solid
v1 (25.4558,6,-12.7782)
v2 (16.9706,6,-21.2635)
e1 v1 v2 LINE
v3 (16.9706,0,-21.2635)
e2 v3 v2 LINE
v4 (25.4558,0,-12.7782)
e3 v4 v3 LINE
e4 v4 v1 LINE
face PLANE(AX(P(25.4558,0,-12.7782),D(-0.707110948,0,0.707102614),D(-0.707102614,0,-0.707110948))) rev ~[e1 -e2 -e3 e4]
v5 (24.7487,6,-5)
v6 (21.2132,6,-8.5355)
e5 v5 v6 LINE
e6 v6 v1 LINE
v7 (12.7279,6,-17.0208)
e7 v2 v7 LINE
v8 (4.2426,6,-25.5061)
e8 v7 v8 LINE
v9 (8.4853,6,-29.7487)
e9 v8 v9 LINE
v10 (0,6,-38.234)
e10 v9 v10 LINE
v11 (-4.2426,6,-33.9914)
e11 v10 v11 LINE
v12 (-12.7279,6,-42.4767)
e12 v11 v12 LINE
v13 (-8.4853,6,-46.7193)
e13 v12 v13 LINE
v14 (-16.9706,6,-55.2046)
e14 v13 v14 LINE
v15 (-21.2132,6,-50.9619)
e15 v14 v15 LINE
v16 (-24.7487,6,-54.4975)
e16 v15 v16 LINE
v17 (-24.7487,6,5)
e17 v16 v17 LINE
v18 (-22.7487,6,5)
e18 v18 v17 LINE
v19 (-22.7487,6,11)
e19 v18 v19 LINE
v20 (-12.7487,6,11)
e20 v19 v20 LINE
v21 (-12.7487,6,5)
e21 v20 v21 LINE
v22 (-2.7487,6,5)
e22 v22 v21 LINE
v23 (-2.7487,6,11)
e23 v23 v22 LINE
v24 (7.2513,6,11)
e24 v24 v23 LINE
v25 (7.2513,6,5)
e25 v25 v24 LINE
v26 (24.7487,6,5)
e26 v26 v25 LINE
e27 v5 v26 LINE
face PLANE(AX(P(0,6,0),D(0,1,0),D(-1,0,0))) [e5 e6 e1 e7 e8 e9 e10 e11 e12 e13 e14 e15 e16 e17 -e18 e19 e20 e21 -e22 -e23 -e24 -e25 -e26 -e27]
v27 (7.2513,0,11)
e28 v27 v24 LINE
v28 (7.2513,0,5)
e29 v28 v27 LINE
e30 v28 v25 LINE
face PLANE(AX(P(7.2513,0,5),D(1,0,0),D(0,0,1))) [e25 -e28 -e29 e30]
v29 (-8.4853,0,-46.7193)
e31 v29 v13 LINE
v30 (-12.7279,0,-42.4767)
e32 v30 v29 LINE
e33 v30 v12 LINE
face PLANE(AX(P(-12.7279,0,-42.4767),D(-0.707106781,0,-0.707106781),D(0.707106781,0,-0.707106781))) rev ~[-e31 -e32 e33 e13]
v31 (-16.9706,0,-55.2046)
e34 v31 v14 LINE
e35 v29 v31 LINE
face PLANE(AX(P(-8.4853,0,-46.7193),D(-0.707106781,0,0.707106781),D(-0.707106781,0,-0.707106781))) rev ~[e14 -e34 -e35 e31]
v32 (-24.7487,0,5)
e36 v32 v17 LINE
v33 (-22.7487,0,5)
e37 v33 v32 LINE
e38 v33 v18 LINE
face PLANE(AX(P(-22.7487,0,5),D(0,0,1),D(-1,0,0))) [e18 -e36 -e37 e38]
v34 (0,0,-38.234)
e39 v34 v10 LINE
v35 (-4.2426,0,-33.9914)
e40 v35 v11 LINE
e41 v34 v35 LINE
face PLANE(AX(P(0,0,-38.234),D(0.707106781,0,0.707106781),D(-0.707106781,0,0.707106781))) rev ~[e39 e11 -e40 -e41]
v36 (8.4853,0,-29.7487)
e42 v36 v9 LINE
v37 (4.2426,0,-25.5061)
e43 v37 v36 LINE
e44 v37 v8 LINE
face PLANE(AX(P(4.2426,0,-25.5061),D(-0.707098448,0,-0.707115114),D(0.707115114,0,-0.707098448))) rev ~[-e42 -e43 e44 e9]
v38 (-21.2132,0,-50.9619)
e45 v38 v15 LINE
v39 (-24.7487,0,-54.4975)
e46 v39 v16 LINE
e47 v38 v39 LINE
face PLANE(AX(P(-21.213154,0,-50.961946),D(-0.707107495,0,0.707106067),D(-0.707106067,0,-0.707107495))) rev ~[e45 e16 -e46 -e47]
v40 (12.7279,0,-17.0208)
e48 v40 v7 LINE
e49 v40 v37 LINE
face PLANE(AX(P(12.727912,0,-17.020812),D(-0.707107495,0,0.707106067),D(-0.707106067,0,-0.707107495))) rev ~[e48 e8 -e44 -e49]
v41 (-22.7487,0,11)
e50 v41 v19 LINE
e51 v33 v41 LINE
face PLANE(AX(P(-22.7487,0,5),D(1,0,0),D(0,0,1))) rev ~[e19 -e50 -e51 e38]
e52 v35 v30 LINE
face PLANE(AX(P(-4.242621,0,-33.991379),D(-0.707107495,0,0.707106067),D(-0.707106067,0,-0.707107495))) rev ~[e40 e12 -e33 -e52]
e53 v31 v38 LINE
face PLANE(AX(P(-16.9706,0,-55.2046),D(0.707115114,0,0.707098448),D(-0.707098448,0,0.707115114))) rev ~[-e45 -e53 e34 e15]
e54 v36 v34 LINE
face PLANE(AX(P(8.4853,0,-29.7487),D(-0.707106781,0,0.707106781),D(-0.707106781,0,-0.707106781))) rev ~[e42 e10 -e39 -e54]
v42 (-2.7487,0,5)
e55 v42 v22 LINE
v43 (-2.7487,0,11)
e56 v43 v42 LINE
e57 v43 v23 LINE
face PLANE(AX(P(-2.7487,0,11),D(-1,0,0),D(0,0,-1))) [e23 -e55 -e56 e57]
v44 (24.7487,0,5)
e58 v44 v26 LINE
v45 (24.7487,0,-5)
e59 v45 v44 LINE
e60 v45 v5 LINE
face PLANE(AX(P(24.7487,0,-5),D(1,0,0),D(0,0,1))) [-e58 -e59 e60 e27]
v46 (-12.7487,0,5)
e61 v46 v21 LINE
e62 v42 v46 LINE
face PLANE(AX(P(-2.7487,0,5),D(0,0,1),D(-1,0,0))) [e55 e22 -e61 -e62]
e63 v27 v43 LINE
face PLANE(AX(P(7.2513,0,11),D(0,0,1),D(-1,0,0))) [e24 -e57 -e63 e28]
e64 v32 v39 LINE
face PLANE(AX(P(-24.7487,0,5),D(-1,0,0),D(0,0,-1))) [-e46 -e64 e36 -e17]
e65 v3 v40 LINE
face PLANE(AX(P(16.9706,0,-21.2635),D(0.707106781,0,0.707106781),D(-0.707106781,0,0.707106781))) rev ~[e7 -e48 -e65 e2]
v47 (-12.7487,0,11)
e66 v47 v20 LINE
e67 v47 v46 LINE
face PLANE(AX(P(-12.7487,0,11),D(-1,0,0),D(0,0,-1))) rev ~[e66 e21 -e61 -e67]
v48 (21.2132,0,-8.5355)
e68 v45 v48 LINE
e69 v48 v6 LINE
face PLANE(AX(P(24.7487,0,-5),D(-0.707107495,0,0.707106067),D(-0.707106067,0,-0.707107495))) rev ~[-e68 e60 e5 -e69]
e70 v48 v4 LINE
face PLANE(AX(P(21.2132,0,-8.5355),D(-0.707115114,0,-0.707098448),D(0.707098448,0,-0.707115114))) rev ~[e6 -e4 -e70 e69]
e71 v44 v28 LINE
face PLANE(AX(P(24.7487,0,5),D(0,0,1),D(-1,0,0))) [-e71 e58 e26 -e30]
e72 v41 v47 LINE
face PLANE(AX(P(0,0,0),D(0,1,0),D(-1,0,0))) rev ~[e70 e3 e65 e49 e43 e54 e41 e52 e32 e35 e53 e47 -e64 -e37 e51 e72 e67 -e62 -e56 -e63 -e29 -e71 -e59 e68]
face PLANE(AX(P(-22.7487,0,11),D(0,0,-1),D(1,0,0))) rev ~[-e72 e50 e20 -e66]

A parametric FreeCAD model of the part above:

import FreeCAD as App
import Part
import Sketcher
from FreeCAD import Vector
Q = App.Units.Quantity

doc = App.newDocument("Part")
body = doc.addObject("PartDesign::Body", "Body")

sketch1 = body.newObject("Sketcher::SketchObject", "Sketch")
sketch1.AttachmentSupport = (doc.getObject("XZ_Plane"), [""])
sketch1.MapMode = "FlatFace"
sketch1.addGeometry([
    Part.LineSegment(Vector(7.3, 5, 0), Vector(24.7, 5, 0)),
    Part.LineSegment(Vector(24.7, 5, 0), Vector(24.7, -5, 0)),
    Part.LineSegment(Vector(24.7, -5, 0), Vector(21.2, -8.5, 0)),
    Part.LineSegment(Vector(21.2, -8.5, 0), Vector(25.5, -12.8, 0)),
    Part.LineSegment(Vector(25.5, -12.8, 0), Vector(17, -21.3, 0)),
    Part.LineSegment(Vector(17, -21.3, 0), Vector(12.7, -17, 0)),
    Part.LineSegment(Vector(12.7, -17, 0), Vector(4.2, -25.5, 0)),
    Part.LineSegment(Vector(4.2, -25.5, 0), Vector(8.5, -29.7, 0)),
    Part.LineSegment(Vector(8.5, -29.7, 0), Vector(0, -38.2, 0)),
    Part.LineSegment(Vector(0, -38.2, 0), Vector(-4.2, -34, 0)),
    Part.LineSegment(Vector(-4.2, -34, 0), Vector(-12.7, -42.5, 0)),
    Part.LineSegment(Vector(-12.7, -42.5, 0), Vector(-8.5, -46.7, 0)),
    Part.LineSegment(Vector(-8.5, -46.7, 0), Vector(-17, -55.2, 0)),
    Part.LineSegment(Vector(-17, -55.2, 0), Vector(-21.2, -51, 0)),
    Part.LineSegment(Vector(-21.2, -51, 0), Vector(-24.7, -54.5, 0)),
    Part.LineSegment(Vector(-24.7, -54.5, 0), Vector(-24.7, 5, 0)),
    Part.LineSegment(Vector(-24.7, 5, 0), Vector(-22.7, 5, 0)),
    Part.LineSegment(Vector(-22.7, 5, 0), Vector(-22.7, 11, 0)),
    Part.LineSegment(Vector(-22.7, 11, 0), Vector(-12.7, 11, 0)),
    Part.LineSegment(Vector(-12.7, 11, 0), Vector(-12.7, 5, 0)),
    Part.LineSegment(Vector(-12.7, 5, 0), Vector(-2.7, 5, 0)),
    Part.LineSegment(Vector(-2.7, 5, 0), Vector(-2.7, 11, 0)),
    Part.LineSegment(Vector(-2.7, 11, 0), Vector(7.3, 11, 0)),
    Part.LineSegment(Vector(7.3, 11, 0), Vector(7.3, 5, 0)),
], False)
sketch1.addConstraint([
    Sketcher.Constraint("Coincident", 0, 2, 1, 1),
    Sketcher.Constraint("Coincident", 1, 2, 2, 1),
    Sketcher.Constraint("Coincident", 2, 2, 3, 1),
    Sketcher.Constraint("Coincident", 3, 2, 4, 1),
    Sketcher.Constraint("Coincident", 4, 2, 5, 1),
    Sketcher.Constraint("Coincident", 5, 2, 6, 1),
    Sketcher.Constraint("Coincident", 6, 2, 7, 1),
    Sketcher.Constraint("Coincident", 7, 2, 8, 1),
    Sketcher.Constraint("Coincident", 8, 2, 9, 1),
    Sketcher.Constraint("Coincident", 9, 2, 10, 1),
    Sketcher.Constraint("Coincident", 10, 2, 11, 1),
    Sketcher.Constraint("Coincident", 11, 2, 12, 1),
    Sketcher.Constraint("Coincident", 12, 2, 13, 1),
    Sketcher.Constraint("Coincident", 13, 2, 14, 1),
    Sketcher.Constraint("Coincident", 14, 2, 15, 1),
    Sketcher.Constraint("Coincident", 15, 2, 16, 1),
    Sketcher.Constraint("Coincident", 16, 2, 17, 1),
    Sketcher.Constraint("Coincident", 17, 2, 18, 1),
    Sketcher.Constraint("Coincident", 18, 2, 19, 1),
    Sketcher.Constraint("Coincident", 19, 2, 20, 1),
    Sketcher.Constraint("Coincident", 20, 2, 21, 1),
    Sketcher.Constraint("Coincident", 21, 2, 22, 1),
    Sketcher.Constraint("Coincident", 22, 2, 23, 1),
    Sketcher.Constraint("Coincident", 23, 2, 0, 1),
    Sketcher.Constraint("Horizontal", 0),
    Sketcher.Constraint("Vertical", 1),
    Sketcher.Constraint("Vertical", 15),
    Sketcher.Constraint("Horizontal", 16),
    Sketcher.Constraint("Vertical", 17),
    Sketcher.Constraint("Horizontal", 18),
    Sketcher.Constraint("Vertical", 19),
    Sketcher.Constraint("Horizontal", 20),
    Sketcher.Constraint("Vertical", 21),
    Sketcher.Constraint("Horizontal", 22),
    Sketcher.Constraint("Vertical", 23),
    Sketcher.Constraint("Symmetric", 1, 2, 15, 2, -1, 1),
    Sketcher.Constraint("PointOnObject", 8, 2, -2),
    Sketcher.Constraint("Perpendicular", 2, 3),
    Sketcher.Constraint("Perpendicular", 3, 4),
    Sketcher.Constraint("Perpendicular", 4, 5),
    Sketcher.Constraint("Perpendicular", 5, 6),
    Sketcher.Constraint("Perpendicular", 6, 7),
    Sketcher.Constraint("Perpendicular", 7, 8),
    Sketcher.Constraint("Perpendicular", 8, 9),
    Sketcher.Constraint("Perpendicular", 9, 10),
    Sketcher.Constraint("Perpendicular", 10, 11),
    Sketcher.Constraint("Perpendicular", 11, 12),
    Sketcher.Constraint("Perpendicular", 12, 13),
    Sketcher.Constraint("Perpendicular", 13, 14),
    Sketcher.Constraint("Horizontal", 0, 2, 15, 2),
    Sketcher.Constraint("Horizontal", 16, 2, 19, 2),
    Sketcher.Constraint("Horizontal", 18, 2, 21, 2),
    Sketcher.Constraint("Equal", 18, 20),
    Sketcher.Constraint("Equal", 20, 22),
    Sketcher.Constraint("Equal", 22, 1),
    Sketcher.Constraint("Equal", 3, 5),
    Sketcher.Constraint("Equal", 4, 6),
    Sketcher.Constraint("Equal", 5, 7),
    Sketcher.Constraint("Equal", 6, 8),
    Sketcher.Constraint("Equal", 7, 9),
    Sketcher.Constraint("Equal", 8, 10),
    Sketcher.Constraint("Equal", 9, 11),
    Sketcher.Constraint("Equal", 10, 12),
    Sketcher.Constraint("Equal", 11, 13),
    Sketcher.Constraint("Equal", 2, 14),
    Sketcher.Constraint("DistanceX", 16, 1, 16, 2, Q("2 mm")),
    Sketcher.Constraint("DistanceX", 18, 1, 18, 2, Q("10 mm")),
    Sketcher.Constraint("DistanceY", 17, 1, 17, 2, Q("6 mm")),
    Sketcher.Constraint("Angle", 11, Q("-45 deg")),
    Sketcher.Constraint("Distance", 2, Q("5 mm")),
    Sketcher.Constraint("Distance", 3, Q("6 mm")),
])
pad1 = body.newObject("PartDesign::Pad", "Pad")
pad1.Profile = sketch1
pad1.Length = 6
pad1.Reversed = True

doc.recompute()
